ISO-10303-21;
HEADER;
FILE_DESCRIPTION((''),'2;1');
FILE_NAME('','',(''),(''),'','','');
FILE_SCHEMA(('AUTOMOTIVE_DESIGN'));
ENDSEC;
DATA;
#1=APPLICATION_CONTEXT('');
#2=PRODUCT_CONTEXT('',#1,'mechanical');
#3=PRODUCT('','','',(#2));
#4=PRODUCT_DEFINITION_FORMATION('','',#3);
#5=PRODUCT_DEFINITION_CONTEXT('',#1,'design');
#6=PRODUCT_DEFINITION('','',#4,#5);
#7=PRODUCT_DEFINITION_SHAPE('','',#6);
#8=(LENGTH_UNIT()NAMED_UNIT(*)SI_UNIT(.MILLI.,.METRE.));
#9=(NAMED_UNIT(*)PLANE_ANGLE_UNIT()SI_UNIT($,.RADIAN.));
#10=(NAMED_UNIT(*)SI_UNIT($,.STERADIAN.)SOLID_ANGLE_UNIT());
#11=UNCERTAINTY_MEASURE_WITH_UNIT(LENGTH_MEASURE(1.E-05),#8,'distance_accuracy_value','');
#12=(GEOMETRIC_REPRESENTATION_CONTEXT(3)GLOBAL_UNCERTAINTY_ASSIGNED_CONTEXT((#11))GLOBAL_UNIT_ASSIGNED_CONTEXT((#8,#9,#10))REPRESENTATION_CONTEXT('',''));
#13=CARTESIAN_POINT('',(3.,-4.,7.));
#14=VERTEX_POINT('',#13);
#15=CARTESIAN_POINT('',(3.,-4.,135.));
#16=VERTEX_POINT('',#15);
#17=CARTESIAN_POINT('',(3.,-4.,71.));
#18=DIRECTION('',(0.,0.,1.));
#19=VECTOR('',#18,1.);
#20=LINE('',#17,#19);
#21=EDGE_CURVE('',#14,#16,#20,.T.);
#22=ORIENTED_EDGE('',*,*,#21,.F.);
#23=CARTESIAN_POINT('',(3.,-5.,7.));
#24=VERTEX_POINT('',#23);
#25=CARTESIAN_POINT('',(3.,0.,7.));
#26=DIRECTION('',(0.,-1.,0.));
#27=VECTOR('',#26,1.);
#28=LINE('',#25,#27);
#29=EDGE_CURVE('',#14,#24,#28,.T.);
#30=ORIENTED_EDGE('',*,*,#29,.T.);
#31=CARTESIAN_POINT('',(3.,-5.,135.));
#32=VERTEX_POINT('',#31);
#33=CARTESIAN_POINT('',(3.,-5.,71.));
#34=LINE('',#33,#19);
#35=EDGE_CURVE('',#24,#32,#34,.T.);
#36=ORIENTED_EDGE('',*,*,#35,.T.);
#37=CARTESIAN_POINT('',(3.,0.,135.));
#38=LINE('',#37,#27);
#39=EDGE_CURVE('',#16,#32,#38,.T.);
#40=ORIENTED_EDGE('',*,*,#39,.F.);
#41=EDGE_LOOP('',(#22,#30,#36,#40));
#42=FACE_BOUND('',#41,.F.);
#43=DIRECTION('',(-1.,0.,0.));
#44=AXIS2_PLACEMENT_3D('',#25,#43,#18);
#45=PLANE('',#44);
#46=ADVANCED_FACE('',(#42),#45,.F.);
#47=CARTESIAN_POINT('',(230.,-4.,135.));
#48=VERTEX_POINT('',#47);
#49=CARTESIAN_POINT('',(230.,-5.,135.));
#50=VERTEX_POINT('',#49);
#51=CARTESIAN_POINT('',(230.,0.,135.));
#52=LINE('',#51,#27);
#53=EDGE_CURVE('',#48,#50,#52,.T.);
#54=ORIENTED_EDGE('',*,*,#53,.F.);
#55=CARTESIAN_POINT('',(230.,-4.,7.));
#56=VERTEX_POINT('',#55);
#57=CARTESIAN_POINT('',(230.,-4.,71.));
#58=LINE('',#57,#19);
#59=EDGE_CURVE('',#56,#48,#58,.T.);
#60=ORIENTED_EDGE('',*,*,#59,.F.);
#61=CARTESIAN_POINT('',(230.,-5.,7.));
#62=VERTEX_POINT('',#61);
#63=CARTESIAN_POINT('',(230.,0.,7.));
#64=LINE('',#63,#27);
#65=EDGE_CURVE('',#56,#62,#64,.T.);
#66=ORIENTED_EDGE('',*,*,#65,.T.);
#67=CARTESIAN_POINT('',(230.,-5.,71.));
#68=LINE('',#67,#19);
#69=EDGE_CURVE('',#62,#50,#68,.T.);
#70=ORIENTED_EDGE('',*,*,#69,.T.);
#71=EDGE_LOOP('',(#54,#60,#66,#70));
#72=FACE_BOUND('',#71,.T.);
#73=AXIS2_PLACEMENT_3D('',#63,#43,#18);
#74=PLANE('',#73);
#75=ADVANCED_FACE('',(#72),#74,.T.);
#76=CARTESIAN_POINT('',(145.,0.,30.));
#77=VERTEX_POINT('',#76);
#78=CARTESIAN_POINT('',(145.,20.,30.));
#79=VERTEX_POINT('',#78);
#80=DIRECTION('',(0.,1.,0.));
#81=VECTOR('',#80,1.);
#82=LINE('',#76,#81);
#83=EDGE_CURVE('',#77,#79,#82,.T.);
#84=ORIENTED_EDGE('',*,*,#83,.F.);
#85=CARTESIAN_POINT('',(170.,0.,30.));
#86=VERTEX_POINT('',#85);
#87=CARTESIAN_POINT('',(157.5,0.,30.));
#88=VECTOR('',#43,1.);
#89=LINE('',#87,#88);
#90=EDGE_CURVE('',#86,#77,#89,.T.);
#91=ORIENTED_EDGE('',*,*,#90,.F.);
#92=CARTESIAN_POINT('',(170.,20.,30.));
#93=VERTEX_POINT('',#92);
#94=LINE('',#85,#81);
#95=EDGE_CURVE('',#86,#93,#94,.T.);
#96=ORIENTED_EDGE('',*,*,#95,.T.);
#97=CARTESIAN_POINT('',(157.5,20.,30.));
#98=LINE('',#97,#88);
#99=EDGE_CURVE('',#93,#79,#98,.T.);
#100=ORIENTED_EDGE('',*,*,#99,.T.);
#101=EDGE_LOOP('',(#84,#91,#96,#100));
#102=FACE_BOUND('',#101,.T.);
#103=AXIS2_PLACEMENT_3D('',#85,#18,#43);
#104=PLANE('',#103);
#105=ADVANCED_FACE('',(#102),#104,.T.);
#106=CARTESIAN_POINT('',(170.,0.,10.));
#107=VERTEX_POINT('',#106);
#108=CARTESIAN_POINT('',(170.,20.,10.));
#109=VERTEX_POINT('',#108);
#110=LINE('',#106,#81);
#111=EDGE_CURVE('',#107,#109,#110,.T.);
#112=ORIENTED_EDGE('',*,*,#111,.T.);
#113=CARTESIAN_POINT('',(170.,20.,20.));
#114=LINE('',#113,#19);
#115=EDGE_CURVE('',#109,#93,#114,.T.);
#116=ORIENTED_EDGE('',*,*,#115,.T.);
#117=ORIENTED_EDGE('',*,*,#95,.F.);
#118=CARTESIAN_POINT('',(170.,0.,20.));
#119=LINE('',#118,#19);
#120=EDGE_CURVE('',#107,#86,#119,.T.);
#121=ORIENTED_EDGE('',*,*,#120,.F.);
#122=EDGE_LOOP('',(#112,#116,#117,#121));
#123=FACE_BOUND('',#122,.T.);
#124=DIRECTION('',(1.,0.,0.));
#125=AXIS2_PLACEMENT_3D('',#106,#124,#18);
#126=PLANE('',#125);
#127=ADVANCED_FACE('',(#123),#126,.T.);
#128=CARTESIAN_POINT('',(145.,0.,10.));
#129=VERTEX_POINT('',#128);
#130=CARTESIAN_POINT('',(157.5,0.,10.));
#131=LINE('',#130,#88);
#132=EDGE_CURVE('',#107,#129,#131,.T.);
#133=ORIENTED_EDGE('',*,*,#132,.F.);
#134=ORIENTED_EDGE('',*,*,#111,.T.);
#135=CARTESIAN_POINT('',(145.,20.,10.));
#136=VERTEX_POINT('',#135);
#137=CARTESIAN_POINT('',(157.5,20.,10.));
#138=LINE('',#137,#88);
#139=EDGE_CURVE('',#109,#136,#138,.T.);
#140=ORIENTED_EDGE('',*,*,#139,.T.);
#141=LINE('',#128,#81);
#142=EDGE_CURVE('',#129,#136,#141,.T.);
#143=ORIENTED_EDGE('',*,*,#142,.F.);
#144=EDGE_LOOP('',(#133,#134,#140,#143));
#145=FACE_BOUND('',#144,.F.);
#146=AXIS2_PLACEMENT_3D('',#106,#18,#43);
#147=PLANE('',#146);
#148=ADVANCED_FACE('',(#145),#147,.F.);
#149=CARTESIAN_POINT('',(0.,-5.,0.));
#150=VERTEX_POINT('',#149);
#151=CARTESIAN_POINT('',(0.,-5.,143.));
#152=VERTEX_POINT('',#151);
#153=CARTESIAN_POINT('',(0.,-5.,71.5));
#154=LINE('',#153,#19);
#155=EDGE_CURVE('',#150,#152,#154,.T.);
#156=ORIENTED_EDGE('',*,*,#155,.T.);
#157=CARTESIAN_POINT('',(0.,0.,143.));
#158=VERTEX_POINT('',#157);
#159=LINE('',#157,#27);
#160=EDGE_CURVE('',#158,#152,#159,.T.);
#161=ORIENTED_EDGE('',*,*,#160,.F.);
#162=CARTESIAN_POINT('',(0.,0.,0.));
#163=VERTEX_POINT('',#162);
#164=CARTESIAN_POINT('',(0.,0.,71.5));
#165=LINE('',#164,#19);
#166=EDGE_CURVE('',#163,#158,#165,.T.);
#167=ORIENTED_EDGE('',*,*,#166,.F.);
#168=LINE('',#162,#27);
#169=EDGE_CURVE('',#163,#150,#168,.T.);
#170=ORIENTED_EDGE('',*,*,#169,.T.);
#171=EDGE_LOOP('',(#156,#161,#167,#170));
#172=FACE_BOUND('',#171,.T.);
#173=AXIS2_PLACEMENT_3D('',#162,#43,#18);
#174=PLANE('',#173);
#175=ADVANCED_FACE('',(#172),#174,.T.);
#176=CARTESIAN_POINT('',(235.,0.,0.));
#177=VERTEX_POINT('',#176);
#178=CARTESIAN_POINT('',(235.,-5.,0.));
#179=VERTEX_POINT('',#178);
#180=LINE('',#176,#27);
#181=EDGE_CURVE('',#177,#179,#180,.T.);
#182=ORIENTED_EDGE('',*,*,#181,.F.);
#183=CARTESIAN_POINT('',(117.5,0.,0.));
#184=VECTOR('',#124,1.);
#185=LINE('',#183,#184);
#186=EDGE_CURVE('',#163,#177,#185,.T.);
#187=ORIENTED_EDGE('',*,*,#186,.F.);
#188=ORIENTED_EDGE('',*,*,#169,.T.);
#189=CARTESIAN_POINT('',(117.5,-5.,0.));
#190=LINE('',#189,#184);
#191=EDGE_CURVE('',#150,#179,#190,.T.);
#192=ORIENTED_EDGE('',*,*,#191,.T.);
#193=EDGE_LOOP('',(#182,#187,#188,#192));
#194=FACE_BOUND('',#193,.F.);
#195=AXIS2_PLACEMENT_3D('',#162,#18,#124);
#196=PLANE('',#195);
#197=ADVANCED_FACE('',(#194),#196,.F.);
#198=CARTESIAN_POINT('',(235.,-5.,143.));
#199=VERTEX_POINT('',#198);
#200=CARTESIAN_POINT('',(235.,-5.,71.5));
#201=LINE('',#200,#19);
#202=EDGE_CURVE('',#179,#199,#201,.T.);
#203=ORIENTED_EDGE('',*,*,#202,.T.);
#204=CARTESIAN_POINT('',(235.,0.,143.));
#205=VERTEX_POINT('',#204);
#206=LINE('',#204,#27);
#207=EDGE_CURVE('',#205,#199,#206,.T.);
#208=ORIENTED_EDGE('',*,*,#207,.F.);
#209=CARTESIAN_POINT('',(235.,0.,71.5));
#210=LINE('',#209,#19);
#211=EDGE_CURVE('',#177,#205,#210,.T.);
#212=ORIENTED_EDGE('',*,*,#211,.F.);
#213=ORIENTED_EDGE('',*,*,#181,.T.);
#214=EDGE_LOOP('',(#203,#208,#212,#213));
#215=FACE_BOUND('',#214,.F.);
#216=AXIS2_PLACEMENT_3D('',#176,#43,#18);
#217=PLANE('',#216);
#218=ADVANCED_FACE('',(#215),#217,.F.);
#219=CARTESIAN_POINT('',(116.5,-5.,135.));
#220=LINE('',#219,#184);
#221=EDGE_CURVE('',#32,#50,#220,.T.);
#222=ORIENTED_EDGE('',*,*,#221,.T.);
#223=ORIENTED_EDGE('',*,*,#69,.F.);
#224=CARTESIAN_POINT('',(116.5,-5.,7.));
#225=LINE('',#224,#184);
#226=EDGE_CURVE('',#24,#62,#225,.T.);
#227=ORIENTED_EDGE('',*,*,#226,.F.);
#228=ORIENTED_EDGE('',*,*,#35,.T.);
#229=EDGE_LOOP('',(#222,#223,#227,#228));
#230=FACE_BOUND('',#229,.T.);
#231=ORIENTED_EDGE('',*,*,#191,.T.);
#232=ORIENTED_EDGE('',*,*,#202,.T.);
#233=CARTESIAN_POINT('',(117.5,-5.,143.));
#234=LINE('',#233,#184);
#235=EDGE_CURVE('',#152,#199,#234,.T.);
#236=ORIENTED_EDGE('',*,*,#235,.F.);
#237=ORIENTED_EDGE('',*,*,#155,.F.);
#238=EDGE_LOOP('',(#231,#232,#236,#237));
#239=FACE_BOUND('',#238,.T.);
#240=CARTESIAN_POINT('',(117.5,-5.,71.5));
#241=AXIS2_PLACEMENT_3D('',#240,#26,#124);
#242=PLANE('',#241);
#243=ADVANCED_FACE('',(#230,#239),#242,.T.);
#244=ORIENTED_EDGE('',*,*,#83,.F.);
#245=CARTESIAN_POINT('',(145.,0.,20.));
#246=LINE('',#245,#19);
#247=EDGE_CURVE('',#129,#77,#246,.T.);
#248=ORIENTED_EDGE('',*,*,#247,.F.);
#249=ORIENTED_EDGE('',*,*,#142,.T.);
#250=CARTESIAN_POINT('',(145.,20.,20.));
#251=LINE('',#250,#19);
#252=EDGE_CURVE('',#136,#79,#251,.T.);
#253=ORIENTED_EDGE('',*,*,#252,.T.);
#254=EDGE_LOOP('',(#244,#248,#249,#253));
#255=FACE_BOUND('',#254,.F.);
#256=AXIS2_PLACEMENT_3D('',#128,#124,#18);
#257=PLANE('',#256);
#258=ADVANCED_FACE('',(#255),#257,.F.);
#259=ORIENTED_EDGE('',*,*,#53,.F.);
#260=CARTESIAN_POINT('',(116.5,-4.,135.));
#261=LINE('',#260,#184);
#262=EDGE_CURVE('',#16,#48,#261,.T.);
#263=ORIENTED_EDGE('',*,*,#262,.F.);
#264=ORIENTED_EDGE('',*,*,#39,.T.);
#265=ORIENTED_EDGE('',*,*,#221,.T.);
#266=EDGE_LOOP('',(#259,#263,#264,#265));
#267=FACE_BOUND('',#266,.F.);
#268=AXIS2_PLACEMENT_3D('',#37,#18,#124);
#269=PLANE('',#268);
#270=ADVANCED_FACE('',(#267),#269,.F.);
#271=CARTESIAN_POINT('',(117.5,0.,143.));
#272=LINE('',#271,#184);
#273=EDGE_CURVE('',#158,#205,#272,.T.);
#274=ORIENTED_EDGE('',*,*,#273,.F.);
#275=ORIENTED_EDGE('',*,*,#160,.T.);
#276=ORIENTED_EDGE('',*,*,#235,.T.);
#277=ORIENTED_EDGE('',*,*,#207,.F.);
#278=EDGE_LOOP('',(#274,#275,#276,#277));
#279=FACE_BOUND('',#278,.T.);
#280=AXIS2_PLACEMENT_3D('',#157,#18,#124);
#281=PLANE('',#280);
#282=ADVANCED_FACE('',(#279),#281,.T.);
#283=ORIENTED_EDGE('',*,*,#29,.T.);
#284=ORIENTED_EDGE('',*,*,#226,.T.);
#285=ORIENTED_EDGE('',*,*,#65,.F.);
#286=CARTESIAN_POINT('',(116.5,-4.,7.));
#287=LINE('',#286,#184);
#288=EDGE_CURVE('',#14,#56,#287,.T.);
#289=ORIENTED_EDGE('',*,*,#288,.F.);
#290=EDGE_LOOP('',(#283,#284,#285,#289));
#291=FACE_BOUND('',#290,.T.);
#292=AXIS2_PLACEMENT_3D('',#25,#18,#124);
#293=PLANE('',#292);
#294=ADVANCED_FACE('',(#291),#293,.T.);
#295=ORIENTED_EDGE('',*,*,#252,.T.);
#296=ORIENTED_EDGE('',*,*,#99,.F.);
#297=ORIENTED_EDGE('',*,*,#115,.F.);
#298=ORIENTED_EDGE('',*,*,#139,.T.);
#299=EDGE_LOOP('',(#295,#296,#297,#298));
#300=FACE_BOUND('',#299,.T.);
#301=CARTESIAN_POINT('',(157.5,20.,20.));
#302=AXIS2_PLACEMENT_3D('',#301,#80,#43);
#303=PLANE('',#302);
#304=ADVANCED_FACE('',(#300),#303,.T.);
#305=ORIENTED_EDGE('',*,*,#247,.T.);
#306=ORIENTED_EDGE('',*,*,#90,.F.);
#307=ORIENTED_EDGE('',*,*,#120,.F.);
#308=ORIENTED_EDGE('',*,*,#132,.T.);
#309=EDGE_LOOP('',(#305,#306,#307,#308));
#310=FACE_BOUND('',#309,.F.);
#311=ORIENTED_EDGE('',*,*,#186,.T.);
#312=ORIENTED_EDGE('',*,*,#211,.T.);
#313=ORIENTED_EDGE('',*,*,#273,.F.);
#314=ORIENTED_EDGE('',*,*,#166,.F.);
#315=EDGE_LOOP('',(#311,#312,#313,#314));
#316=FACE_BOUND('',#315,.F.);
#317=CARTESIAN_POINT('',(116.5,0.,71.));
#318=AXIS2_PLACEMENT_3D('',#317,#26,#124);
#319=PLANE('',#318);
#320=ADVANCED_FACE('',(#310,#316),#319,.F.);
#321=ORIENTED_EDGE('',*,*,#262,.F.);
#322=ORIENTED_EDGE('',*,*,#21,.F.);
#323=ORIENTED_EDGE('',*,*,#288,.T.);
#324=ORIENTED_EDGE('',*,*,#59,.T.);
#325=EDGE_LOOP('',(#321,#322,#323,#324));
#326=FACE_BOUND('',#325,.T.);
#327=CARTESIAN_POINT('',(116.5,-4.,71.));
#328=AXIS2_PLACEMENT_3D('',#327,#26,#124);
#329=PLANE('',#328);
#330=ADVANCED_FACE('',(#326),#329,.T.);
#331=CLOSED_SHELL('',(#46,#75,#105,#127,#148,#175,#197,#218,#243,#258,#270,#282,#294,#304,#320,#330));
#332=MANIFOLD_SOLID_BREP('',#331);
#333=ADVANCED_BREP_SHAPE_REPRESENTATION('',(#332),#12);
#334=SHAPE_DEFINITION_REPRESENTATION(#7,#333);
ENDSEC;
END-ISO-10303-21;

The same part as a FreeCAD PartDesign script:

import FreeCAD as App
import Part
import Sketcher

V = App.Vector
Q = App.Units.Quantity


def add_polygon(sketch, points):
    """Adds a closed chain of lines whose ends are joined by coincident constraints."""
    first, n = sketch.GeometryCount, len(points)
    for a, b in zip(points, points[1:] + points[:1]):
        sketch.addGeometry(Part.LineSegment(App.Vector(*a, 0), App.Vector(*b, 0)), False)
    for i in range(n):
        sketch.addConstraint(Sketcher.Constraint("Coincident", first + i, 2, first + (i + 1) % n, 1))

doc = App.newDocument("Part")
params = doc.addObject("Spreadsheet::Sheet", "Params")
for row, (alias, value) in enumerate([
    ("sketch1_width", "235 mm"),
    ("sketch1_width2", "227 mm"),
    ("sketch1_height", "143 mm"),
    ("sketch1_height2", "128 mm"),
    ("pad1_length", "5 mm"),
    ("sketch2_width", "227 mm"),
    ("sketch2_height", "128 mm"),
    ("pad2_length", "4 mm"),
    ("sketch3_width", "25 mm"),
    ("sketch3_height", "20 mm"),
    ("pad3_length", "20 mm"),
], start=1):
    params.set(f"A{row}", alias)
    params.set(f"B{row}", "=" + value)
    params.setAlias(f"B{row}", alias)

body = doc.addObject("PartDesign::Body", "Body")

# Sketch on XZ plane
sketch1 = body.newObject("Sketcher::SketchObject", "Sketch")
sketch1.AttachmentSupport = (doc.getObject("XZ_Plane"), [""])
sketch1.MapMode = "FlatFace"
add_polygon(sketch1, [(0, 143), (0, 0), (235, 0), (235, 143)])  # lines 0-3
add_polygon(sketch1, [(230, 7), (3, 7), (3, 135), (230, 135)])  # lines 4-7
sketch1.addConstraint([
    Sketcher.Constraint("Vertical", 0),
    Sketcher.Constraint("Horizontal", 1),
    Sketcher.Constraint("Vertical", 2),
    Sketcher.Constraint("Horizontal", 3),
    Sketcher.Constraint("Horizontal", 4),
    Sketcher.Constraint("Vertical", 5),
    Sketcher.Constraint("Horizontal", 6),
    Sketcher.Constraint("Vertical", 7),
    Sketcher.Constraint("Coincident", 0, 2, -1, 1),
    Sketcher.Constraint("DistanceX", 1, 1, 1, 2, Q("235 mm")),
    Sketcher.Constraint("DistanceX", 4, 2, 4, 1, Q("227 mm")),
    Sketcher.Constraint("DistanceY", 0, 2, 0, 1, Q("143 mm")),
    Sketcher.Constraint("DistanceY", 5, 1, 5, 2, Q("128 mm")),
    Sketcher.Constraint("DistanceX", -1, 1, 4, 2, Q("3 mm")),
    Sketcher.Constraint("DistanceY", -1, 1, 4, 2, Q("7 mm")),
])
sketch1.setExpression("Constraints[17]", "Params.sketch1_width")
sketch1.setExpression("Constraints[18]", "Params.sketch1_width2")
sketch1.setExpression("Constraints[19]", "Params.sketch1_height")
sketch1.setExpression("Constraints[20]", "Params.sketch1_height2")
pad1 = body.newObject("PartDesign::Pad", "Pad")
pad1.Profile = sketch1
pad1.setExpression("Length", "Params.pad1_length")

# Sketch on XZ plane
sketch2 = body.newObject("Sketcher::SketchObject", "Sketch001")
sketch2.AttachmentSupport = (doc.getObject("XZ_Plane"), [""])
sketch2.MapMode = "FlatFace"
add_polygon(sketch2, [(3, 135), (3, 7), (230, 7), (230, 135)])  # lines 0-3
sketch2.addConstraint([
    Sketcher.Constraint("Vertical", 0),
    Sketcher.Constraint("Horizontal", 1),
    Sketcher.Constraint("Vertical", 2),
    Sketcher.Constraint("Horizontal", 3),
    Sketcher.Constraint("DistanceX", 1, 1, 1, 2, Q("227 mm")),
    Sketcher.Constraint("DistanceY", 0, 2, 0, 1, Q("128 mm")),
    Sketcher.Constraint("DistanceX", -1, 1, 0, 2, Q("3 mm")),
    Sketcher.Constraint("DistanceY", -1, 1, 0, 2, Q("7 mm")),
])
sketch2.setExpression("Constraints[8]", "Params.sketch2_width")
sketch2.setExpression("Constraints[9]", "Params.sketch2_height")
pad2 = body.newObject("PartDesign::Pad", "Pad001")
pad2.Profile = sketch2
pad2.setExpression("Length", "Params.pad2_length")

# Sketch on XZ plane
sketch3 = body.newObject("Sketcher::SketchObject", "Sketch002")
sketch3.AttachmentSupport = (doc.getObject("XZ_Plane"), [""])
sketch3.MapMode = "FlatFace"
add_polygon(sketch3, [(170, 30), (170, 10), (145, 10), (145, 30)])  # lines 0-3
sketch3.addConstraint([
    Sketcher.Constraint("Vertical", 0),
    Sketcher.Constraint("Horizontal", 1),
    Sketcher.Constraint("Vertical", 2),
    Sketcher.Constraint("Horizontal", 3),
    Sketcher.Constraint("DistanceX", 1, 2, 1, 1, Q("25 mm")),
    Sketcher.Constraint("DistanceY", 0, 2, 0, 1, Q("20 mm")),
    Sketcher.Constraint("DistanceX", -1, 1, 0, 2, Q("170 mm")),
    Sketcher.Constraint("DistanceY", -1, 1, 0, 2, Q("10 mm")),
])
sketch3.setExpression("Constraints[8]", "Params.sketch3_width")
sketch3.setExpression("Constraints[9]", "Params.sketch3_height")
pad3 = body.newObject("PartDesign::Pad", "Pad002")
pad3.Profile = sketch3
pad3.setExpression("Length", "Params.pad3_length")
pad3.Reversed = True

doc.recompute()
